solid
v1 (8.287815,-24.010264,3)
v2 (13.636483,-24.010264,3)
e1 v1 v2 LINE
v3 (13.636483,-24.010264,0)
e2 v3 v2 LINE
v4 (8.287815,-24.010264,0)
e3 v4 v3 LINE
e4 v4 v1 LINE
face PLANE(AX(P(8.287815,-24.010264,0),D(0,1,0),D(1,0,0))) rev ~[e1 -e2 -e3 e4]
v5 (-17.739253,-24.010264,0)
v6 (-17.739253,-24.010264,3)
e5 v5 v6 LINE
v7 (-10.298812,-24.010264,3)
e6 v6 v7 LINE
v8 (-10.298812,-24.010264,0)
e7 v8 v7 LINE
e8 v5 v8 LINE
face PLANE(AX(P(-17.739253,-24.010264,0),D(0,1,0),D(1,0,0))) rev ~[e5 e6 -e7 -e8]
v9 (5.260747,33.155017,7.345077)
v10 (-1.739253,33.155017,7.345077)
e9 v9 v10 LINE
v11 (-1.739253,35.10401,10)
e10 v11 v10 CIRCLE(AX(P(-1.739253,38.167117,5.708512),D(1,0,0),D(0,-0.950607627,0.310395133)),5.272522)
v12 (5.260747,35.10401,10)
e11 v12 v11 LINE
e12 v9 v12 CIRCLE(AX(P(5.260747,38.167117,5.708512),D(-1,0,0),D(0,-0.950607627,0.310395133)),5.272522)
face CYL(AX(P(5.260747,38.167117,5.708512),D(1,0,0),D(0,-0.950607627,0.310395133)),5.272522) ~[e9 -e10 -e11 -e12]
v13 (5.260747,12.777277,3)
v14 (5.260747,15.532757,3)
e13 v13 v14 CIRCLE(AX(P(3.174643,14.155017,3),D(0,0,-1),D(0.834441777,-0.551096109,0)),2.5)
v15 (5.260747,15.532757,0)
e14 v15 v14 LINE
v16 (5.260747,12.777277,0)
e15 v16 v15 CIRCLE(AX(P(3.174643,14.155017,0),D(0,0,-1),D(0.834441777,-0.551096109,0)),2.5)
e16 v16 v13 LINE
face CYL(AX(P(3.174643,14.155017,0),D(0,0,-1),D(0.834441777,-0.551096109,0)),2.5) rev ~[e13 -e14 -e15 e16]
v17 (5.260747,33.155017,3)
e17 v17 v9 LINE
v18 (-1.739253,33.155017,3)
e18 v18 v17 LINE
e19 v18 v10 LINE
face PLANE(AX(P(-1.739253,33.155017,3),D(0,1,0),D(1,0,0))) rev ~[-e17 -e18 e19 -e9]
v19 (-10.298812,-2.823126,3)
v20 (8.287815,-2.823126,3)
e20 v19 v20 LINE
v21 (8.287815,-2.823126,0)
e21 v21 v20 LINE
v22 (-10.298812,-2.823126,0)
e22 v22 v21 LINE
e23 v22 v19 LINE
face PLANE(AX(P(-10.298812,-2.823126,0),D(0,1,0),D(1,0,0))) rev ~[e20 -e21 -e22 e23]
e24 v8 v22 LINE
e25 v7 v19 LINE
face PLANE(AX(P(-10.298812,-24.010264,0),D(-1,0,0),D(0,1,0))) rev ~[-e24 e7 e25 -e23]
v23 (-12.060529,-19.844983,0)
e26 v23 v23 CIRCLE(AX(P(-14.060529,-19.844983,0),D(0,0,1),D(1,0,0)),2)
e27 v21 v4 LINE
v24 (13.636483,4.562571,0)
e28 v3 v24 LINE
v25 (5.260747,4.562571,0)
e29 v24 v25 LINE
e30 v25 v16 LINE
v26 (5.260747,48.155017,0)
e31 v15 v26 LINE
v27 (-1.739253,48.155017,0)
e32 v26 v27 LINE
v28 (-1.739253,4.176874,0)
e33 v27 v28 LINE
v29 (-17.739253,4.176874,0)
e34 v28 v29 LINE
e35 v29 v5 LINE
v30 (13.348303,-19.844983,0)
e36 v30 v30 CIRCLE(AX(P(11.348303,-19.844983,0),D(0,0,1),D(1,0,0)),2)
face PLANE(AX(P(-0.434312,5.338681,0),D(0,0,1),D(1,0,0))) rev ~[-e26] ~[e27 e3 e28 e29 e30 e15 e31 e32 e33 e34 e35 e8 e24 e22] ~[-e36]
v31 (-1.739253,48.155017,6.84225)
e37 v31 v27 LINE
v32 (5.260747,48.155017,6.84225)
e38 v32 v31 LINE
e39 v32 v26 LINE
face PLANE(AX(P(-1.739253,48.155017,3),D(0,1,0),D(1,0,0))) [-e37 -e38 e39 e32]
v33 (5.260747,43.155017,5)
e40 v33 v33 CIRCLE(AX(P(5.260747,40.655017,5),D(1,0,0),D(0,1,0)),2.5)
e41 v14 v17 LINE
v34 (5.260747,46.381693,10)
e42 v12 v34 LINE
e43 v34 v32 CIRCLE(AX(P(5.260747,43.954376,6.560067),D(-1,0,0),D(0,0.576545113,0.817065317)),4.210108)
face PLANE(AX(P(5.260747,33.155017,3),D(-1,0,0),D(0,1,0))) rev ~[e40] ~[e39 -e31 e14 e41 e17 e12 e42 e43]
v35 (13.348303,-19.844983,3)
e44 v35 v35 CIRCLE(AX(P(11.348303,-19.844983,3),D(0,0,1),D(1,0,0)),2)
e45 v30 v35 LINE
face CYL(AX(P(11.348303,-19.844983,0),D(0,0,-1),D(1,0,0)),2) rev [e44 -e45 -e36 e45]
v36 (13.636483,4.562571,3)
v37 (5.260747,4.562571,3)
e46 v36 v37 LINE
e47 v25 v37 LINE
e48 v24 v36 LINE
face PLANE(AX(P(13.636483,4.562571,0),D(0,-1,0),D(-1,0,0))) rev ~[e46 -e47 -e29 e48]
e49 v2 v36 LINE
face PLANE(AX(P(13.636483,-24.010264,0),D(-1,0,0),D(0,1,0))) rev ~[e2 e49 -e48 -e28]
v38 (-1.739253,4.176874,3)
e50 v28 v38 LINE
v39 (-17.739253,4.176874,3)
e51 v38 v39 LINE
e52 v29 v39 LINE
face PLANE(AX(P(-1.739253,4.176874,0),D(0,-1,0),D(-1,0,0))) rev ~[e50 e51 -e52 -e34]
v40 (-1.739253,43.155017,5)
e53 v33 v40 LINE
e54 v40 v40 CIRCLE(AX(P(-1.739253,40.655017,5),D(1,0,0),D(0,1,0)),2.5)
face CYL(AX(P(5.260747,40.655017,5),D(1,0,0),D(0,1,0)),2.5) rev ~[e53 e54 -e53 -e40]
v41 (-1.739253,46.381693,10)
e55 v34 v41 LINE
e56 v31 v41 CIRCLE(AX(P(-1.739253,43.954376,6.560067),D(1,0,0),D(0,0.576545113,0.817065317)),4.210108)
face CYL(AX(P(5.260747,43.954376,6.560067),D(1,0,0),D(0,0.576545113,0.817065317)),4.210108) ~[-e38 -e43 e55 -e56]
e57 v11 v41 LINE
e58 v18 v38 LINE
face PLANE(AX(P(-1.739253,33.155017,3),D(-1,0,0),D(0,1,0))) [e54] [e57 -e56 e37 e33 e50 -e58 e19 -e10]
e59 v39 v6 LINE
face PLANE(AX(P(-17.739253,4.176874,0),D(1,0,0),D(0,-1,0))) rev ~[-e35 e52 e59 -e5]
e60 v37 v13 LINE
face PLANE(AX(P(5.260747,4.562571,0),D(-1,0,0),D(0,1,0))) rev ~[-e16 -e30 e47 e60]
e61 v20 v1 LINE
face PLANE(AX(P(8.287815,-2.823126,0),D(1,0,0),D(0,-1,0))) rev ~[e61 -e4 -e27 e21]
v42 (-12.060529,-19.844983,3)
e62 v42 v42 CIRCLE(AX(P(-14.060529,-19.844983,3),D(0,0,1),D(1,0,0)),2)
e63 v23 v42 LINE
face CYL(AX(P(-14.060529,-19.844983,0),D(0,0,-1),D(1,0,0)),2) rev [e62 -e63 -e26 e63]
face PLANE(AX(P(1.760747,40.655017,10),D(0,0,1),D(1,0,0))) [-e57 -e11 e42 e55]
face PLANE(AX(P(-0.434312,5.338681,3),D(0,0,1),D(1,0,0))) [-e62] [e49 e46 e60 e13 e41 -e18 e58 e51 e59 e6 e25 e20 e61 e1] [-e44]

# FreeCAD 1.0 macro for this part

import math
import FreeCAD as App
import Part
import Sketcher
Q = App.Units.Quantity

doc = App.newDocument("Part")
body = doc.addObject("PartDesign::Body", "Body")

# Sketch on XY plane
sketch1 = body.newObject("Sketcher::SketchObject", "Sketch")
sketch1.AttachmentSupport = (doc.getObject("XY_Plane"), [""])
sketch1.MapMode = "FlatFace"
sketch1.addGeometry(Part.LineSegment(App.Vector(5.3, 48.2, 0), App.Vector(-1.7, 48.2, 0)), False)
sketch1.addGeometry(Part.LineSegment(App.Vector(-1.7, 48.2, 0), App.Vector(-1.7, 4.2, 0)), False)
sketch1.addGeometry(Part.LineSegment(App.Vector(-1.7, 4.2, 0), App.Vector(-17.7, 4.2, 0)), False)
sketch1.addGeometry(Part.LineSegment(App.Vector(-17.7, 4.2, 0), App.Vector(-17.7, -24, 0)), False)
sketch1.addGeometry(Part.LineSegment(App.Vector(-17.7, -24, 0), App.Vector(-10.3, -24, 0)), False)
sketch1.addGeometry(Part.LineSegment(App.Vector(-10.3, -24, 0), App.Vector(-10.3, -2.8, 0)), False)
sketch1.addGeometry(Part.LineSegment(App.Vector(-10.3, -2.8, 0), App.Vector(8.3, -2.8, 0)), False)
sketch1.addGeometry(Part.LineSegment(App.Vector(8.3, -2.8, 0), App.Vector(8.3, -24, 0)), False)
sketch1.addGeometry(Part.LineSegment(App.Vector(8.3, -24, 0), App.Vector(13.6, -24, 0)), False)
sketch1.addGeometry(Part.LineSegment(App.Vector(13.6, -24, 0), App.Vector(13.6, 4.6, 0)), False)
sketch1.addGeometry(Part.LineSegment(App.Vector(13.6, 4.6, 0), App.Vector(5.3, 4.6, 0)), False)
sketch1.addGeometry(Part.LineSegment(App.Vector(5.3, 4.6, 0), App.Vector(5.3, 12.8, 0)), False)
sketch1.addGeometry(Part.ArcOfCircle(Part.Circle(App.Vector(3.2, 14.2, 0), App.Vector(0, 0, 1), 2.5), math.radians(33), math.radians(327)), False)
sketch1.addGeometry(Part.LineSegment(App.Vector(5.3, 15.5, 0), App.Vector(5.3, 48.2, 0)), False)
sketch1.addGeometry(Part.Circle(App.Vector(-14.1, -19.8, 0), App.Vector(0, 0, 1), 2), False)
sketch1.addGeometry(Part.Circle(App.Vector(11.3, -19.8, 0), App.Vector(0, 0, 1), 2), False)
sketch1.addConstraint(Sketcher.Constraint("Coincident", 0, 2, 1, 1))
sketch1.addConstraint(Sketcher.Constraint("Coincident", 1, 2, 2, 1))
sketch1.addConstraint(Sketcher.Constraint("Coincident", 2, 2, 3, 1))
sketch1.addConstraint(Sketcher.Constraint("Coincident", 3, 2, 4, 1))
sketch1.addConstraint(Sketcher.Constraint("Coincident", 4, 2, 5, 1))
sketch1.addConstraint(Sketcher.Constraint("Coincident", 5, 2, 6, 1))
sketch1.addConstraint(Sketcher.Constraint("Coincident", 6, 2, 7, 1))
sketch1.addConstraint(Sketcher.Constraint("Coincident", 7, 2, 8, 1))
sketch1.addConstraint(Sketcher.Constraint("Coincident", 8, 2, 9, 1))
sketch1.addConstraint(Sketcher.Constraint("Coincident", 9, 2, 10, 1))
sketch1.addConstraint(Sketcher.Constraint("Coincident", 10, 2, 11, 1))
sketch1.addConstraint(Sketcher.Constraint("Coincident", 11, 2, 12, 2))
sketch1.addConstraint(Sketcher.Constraint("Coincident", 12, 1, 13, 1))
sketch1.addConstraint(Sketcher.Constraint("Coincident", 13, 2, 0, 1))
sketch1.addConstraint(Sketcher.Constraint("Horizontal", 0))
sketch1.addConstraint(Sketcher.Constraint("Vertical", 1))
sketch1.addConstraint(Sketcher.Constraint("Horizontal", 2))
sketch1.addConstraint(Sketcher.Constraint("Vertical", 3))
sketch1.addConstraint(Sketcher.Constraint("Horizontal", 4))
sketch1.addConstraint(Sketcher.Constraint("Vertical", 5))
sketch1.addConstraint(Sketcher.Constraint("Horizontal", 6))
sketch1.addConstraint(Sketcher.Constraint("Vertical", 7))
sketch1.addConstraint(Sketcher.Constraint("Horizontal", 8))
sketch1.addConstraint(Sketcher.Constraint("Vertical", 9))
sketch1.addConstraint(Sketcher.Constraint("Horizontal", 10))
sketch1.addConstraint(Sketcher.Constraint("Vertical", 11))
sketch1.addConstraint(Sketcher.Constraint("Vertical", 13))
sketch1.addConstraint(Sketcher.Constraint("Equal", 14, 15))
sketch1.addConstraint(Sketcher.Constraint("Horizontal", 14, 3, 15, 3))
sketch1.addConstraint(Sketcher.Constraint("Horizontal", 4, 2, 7, 2))
sketch1.addConstraint(Sketcher.Constraint("Vertical", 11, 2, 12, 1))
sketch1.addConstraint(Sketcher.Constraint("Diameter", 14, Q("4 mm")))
sketch1.addConstraint(Sketcher.Constraint("Radius", 12, Q("2.5 mm")))
sketch1.addConstraint(Sketcher.Constraint("DistanceX", 0, 2, 0, 1, Q("7 mm")))
sketch1.addConstraint(Sketcher.Constraint("DistanceX", 2, 2, 2, 1, Q("16 mm")))
sketch1.addConstraint(Sketcher.Constraint("DistanceY", 14, 3, 12, 3, Q("34 mm")))
sketch1.addConstraint(Sketcher.Constraint("DistanceY", 12, 3, 0, 2, Q("34 mm")))
sketch1.addConstraint(Sketcher.Constraint("DistanceY", 5, 2, 2, 2, Q("7 mm")))
sketch1.addConstraint(Sketcher.Constraint("DistanceX", 4, 1, 4, 2, Q("7.440441 mm")))
sketch1.addConstraint(Sketcher.Constraint("DistanceY", 3, 2, 3, 1, Q("28.187138 mm")))
sketch1.addConstraint(Sketcher.Constraint("DistanceY", 13, 1, 13, 2, Q("32.62226 mm")))
sketch1.addConstraint(Sketcher.Constraint("DistanceX", 6, 1, 6, 2, Q("18.586627 mm")))
sketch1.addConstraint(Sketcher.Constraint("DistanceX", 8, 1, 8, 2, Q("5.348668 mm")))
sketch1.addConstraint(Sketcher.Constraint("DistanceY", 1, 2, 1, 1, Q("43.978142 mm")))
sketch1.addConstraint(Sketcher.Constraint("DistanceY", 9, 1, 9, 2, Q("28.572835 mm")))
sketch1.addConstraint(Sketcher.Constraint("DistanceX", 14, 3, -1, 1, Q("14.060529 mm")))
sketch1.addConstraint(Sketcher.Constraint("DistanceX", 4, 2, -1, 1, Q("10.298812 mm")))
sketch1.addConstraint(Sketcher.Constraint("DistanceY", -1, 1, 9, 2, Q("4.562571 mm")))
sketch1.addConstraint(Sketcher.Constraint("DistanceX", 12, 3, 15, 3, Q("8.173661 mm")))
pad1 = body.newObject("PartDesign::Pad", "Pad")
pad1.Profile = sketch1
pad1.Length = 3

# Sketch on XY plane
sketch2 = body.newObject("Sketcher::SketchObject", "Sketch001")
sketch2.AttachmentSupport = (doc.getObject("XY_Plane"), [""])
sketch2.MapMode = "FlatFace"
sketch2.AttachmentOffset = App.Placement(App.Vector(0, 0, 3), App.Rotation())
sketch2.addGeometry(Part.LineSegment(App.Vector(-2, 48, 0), App.Vector(-2, 33, 0)), False)
sketch2.addGeometry(Part.LineSegment(App.Vector(-2, 33, 0), App.Vector(5, 33, 0)), False)
sketch2.addGeometry(Part.LineSegment(App.Vector(5, 33, 0), App.Vector(5, 48, 0)), False)
sketch2.addGeometry(Part.LineSegment(App.Vector(5, 48, 0), App.Vector(-2, 48, 0)), False)
sketch2.addConstraint(Sketcher.Constraint("Coincident", 0, 2, 1, 1))
sketch2.addConstraint(Sketcher.Constraint("Coincident", 1, 2, 2, 1))
sketch2.addConstraint(Sketcher.Constraint("Coincident", 2, 2, 3, 1))
sketch2.addConstraint(Sketcher.Constraint("Coincident", 3, 2, 0, 1))
sketch2.addConstraint(Sketcher.Constraint("Vertical", 0))
sketch2.addConstraint(Sketcher.Constraint("Horizontal", 1))
sketch2.addConstraint(Sketcher.Constraint("Vertical", 2))
sketch2.addConstraint(Sketcher.Constraint("Horizontal", 3))
sketch2.addConstraint(Sketcher.Constraint("DistanceX", 1, 1, 1, 2, Q("7 mm")))
sketch2.addConstraint(Sketcher.Constraint("DistanceY", 0, 2, 0, 1, Q("15 mm")))
sketch2.addConstraint(Sketcher.Constraint("DistanceX", 0, 2, -1, 1, Q("1.739253 mm")))
sketch2.addConstraint(Sketcher.Constraint("DistanceY", -1, 1, 0, 2, Q("33.155017 mm")))
pad2 = body.newObject("PartDesign::Pad", "Pad001")
pad2.Profile = sketch2
pad2.Length = 7

# Sketch on YZ plane
sketch3 = body.newObject("Sketcher::SketchObject", "Sketch002")
sketch3.AttachmentSupport = (doc.getObject("YZ_Plane"), [""])
sketch3.MapMode = "FlatFace"
sketch3.AttachmentOffset = App.Placement(App.Vector(0, 0, 5.260747), App.Rotation())
sketch3.addGeometry(Part.Circle(App.Vector(40.7, 5, 0), App.Vector(0, 0, 1), 2.5), False)
sketch3.addConstraint(Sketcher.Constraint("Diameter", 0, Q("5 mm")))
sketch3.addConstraint(Sketcher.Constraint("DistanceY", -1, 1, 0, 3, Q("5 mm")))
sketch3.addConstraint(Sketcher.Constraint("DistanceX", -1, 1, 0, 3, Q("40.655017 mm")))
pocket1 = body.newObject("PartDesign::Pocket", "Pocket")
pocket1.Profile = sketch3
pocket1.Type = "ThroughAll"

# Sketch on YZ plane
sketch4 = body.newObject("Sketcher::SketchObject", "Sketch003")
sketch4.AttachmentSupport = (doc.getObject("YZ_Plane"), [""])
sketch4.MapMode = "FlatFace"
sketch4.AttachmentOffset = App.Placement(App.Vector(0, 0, 5.260747), App.Rotation())
sketch4.addGeometry(Part.ArcOfCircle(Part.Circle(App.Vector(38.2, 5.7, 0), App.Vector(0, 0, 1), 5.3), math.radians(126), math.radians(162)), False)
sketch4.addGeometry(Part.LineSegment(App.Vector(35.1, 10, 0), App.Vector(33.2, 10, 0)), False)
sketch4.addGeometry(Part.LineSegment(App.Vector(33.2, 10, 0), App.Vector(33.2, 7.3, 0)), False)
sketch4.addGeometry(Part.LineSegment(App.Vector(48.2, 10, 0), App.Vector(46.4, 10, 0)), False)
sketch4.addGeometry(Part.ArcOfCircle(Part.Circle(App.Vector(44, 6.6, 0), App.Vector(0, 0, 1), 4.2), math.radians(4), math.radians(55)), False)
sketch4.addGeometry(Part.LineSegment(App.Vector(48.2, 6.8, 0), App.Vector(48.2, 10, 0)), False)
sketch4.addConstraint(Sketcher.Constraint("Coincident", 0, 1, 1, 1))
sketch4.addConstraint(Sketcher.Constraint("Coincident", 1, 2, 2, 1))
sketch4.addConstraint(Sketcher.Constraint("Coincident", 2, 2, 0, 2))
sketch4.addConstraint(Sketcher.Constraint("Coincident", 3, 2, 4, 2))
sketch4.addConstraint(Sketcher.Constraint("Coincident", 4, 1, 5, 1))
sketch4.addConstraint(Sketcher.Constraint("Coincident", 5, 2, 3, 1))
sketch4.addConstraint(Sketcher.Constraint("Horizontal", 1))
sketch4.addConstraint(Sketcher.Constraint("Vertical", 2))
sketch4.addConstraint(Sketcher.Constraint("Horizontal", 3))
sketch4.addConstraint(Sketcher.Constraint("Vertical", 5))
sketch4.addConstraint(Sketcher.Constraint("Horizontal", 1, 2, 3, 2))
sketch4.addConstraint(Sketcher.Constraint("DistanceY", -1, 1, 0, 1, Q("10 mm")))
sketch4.addConstraint(Sketcher.Constraint("DistanceX", 2, 2, 4, 1, Q("15 mm")))
sketch4.addConstraint(Sketcher.Constraint("Radius", 4, Q("4.210108 mm")))
sketch4.addConstraint(Sketcher.Constraint("Radius", 0, Q("5.272522 mm")))
sketch4.addConstraint(Sketcher.Constraint("DistanceY", 5, 1, 5, 2, Q("3.15775 mm")))
sketch4.addConstraint(Sketcher.Constraint("DistanceX", 1, 2, 0, 3, Q("5.0121 mm")))
sketch4.addConstraint(Sketcher.Constraint("DistanceX", 1, 2, 1, 1, Q("1.948993 mm")))
sketch4.addConstraint(Sketcher.Constraint("DistanceX", 3, 2, 3, 1, Q("1.773323 mm")))
sketch4.addConstraint(Sketcher.Constraint("DistanceX", -1, 1, 0, 1, Q("35.10401 mm")))
pocket2 = body.newObject("PartDesign::Pocket", "Pocket001")
pocket2.Profile = sketch4
pocket2.Length = 25

doc.recompute()
